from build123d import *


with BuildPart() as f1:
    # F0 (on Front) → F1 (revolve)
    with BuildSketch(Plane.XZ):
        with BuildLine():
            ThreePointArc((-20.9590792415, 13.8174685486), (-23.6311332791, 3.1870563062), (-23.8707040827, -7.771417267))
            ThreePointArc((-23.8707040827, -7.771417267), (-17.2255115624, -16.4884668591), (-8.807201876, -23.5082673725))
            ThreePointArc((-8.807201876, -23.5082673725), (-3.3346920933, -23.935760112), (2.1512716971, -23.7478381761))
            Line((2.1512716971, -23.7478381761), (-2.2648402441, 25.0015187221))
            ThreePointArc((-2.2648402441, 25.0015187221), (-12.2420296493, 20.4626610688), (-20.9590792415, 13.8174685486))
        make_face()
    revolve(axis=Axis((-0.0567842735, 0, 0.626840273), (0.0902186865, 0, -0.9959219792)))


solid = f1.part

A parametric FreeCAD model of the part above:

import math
import FreeCAD as App
import Part
import Sketcher

doc = App.newDocument("Part")
body = doc.addObject("PartDesign::Body", "Body")

# Sketch on XZ plane
sketch1 = doc.addObject("Sketcher::SketchObject", "Sketch")
body.addObject(sketch1)
sketch1.AttachmentSupport = (doc.XZ_Plane, [""])
sketch1.MapMode = "FlatFace"
sketch1.addGeometry([
    Part.ArcOfCircle(Part.Circle(App.Vector(24.878653, -3.355305, 0), App.Vector(0, 0, 1), 48.948972), math.radians(159.461902), math.radians(185.176188)),  # 0
    Part.ArcOfCircle(Part.Circle(App.Vector(18.13487, 17.358915, 0), App.Vector(0, 0, 1), 48.948972), math.radians(-149.109526), math.radians(-123.39524)),  # 1
    Part.ArcOfCircle(Part.Circle(App.Vector(-2.26484, 25.001519, 0), App.Vector(0, 0, 1), 48.948972), math.radians(-97.680955), math.radians(-84.823812)),  # 2
    Part.LineSegment(App.Vector(2.151272, -23.747838, 0), App.Vector(-2.26484, 25.001519, 0)),  # 3
    Part.ArcOfCircle(Part.Circle(App.Vector(12.888303, -21.542913, 0), App.Vector(0, 0, 1), 48.948972), math.radians(108.033331), math.radians(133.747617)),  # 4
], False)
sketch1.addGeometry(Part.LineSegment(App.Vector(-2.26484, 25.001519, 0), App.Vector(2.151272, -23.747838, 0)), True)  # axis
sketch1.addConstraint([
    Sketcher.Constraint("Coincident", 0, 2, 1, 1),
    Sketcher.Constraint("Coincident", 1, 2, 2, 1),
    Sketcher.Constraint("Coincident", 2, 2, 3, 1),
    Sketcher.Constraint("Coincident", 3, 2, 4, 1),
    Sketcher.Constraint("Coincident", 4, 2, 0, 1),
    Sketcher.Constraint("Coincident", 3, 2, 2, 3),
    Sketcher.Constraint("Coincident", 5, 1, 2, 3),
    Sketcher.Constraint("Coincident", 5, 2, 2, 2),
    Sketcher.Constraint("Equal", 0, 1),
    Sketcher.Constraint("Equal", 1, 2),
    Sketcher.Constraint("Equal", 2, 4),
    Sketcher.Constraint("Radius", 0, 48.948972),
    Sketcher.Constraint("DistanceX", 1, 2, -1, 1, 8.807202),
    Sketcher.Constraint("DistanceX", -1, 1, 1, 3, 18.13487),
    Sketcher.Constraint("DistanceX", 2, 3, -1, 1, 2.26484),
    Sketcher.Constraint("DistanceY", -1, 1, 2, 3, 25.001519),
    Sketcher.Constraint("DistanceX", -1, 1, 2, 2, 2.151272),
    Sketcher.Constraint("DistanceX", 4, 2, -1, 1, 20.959079),
    Sketcher.Constraint("DistanceY", -1, 1, 4, 2, 13.817469),
    Sketcher.Constraint("DistanceY", 0, 3, 1, 3, 20.714221),
])
revolution = doc.addObject("PartDesign::Revolution", "Revolution")
body.addObject(revolution)
revolution.Profile = sketch1
revolution.ReferenceAxis = (sketch1, ["Axis0"])
revolution.Angle = 360

doc.recompute()
